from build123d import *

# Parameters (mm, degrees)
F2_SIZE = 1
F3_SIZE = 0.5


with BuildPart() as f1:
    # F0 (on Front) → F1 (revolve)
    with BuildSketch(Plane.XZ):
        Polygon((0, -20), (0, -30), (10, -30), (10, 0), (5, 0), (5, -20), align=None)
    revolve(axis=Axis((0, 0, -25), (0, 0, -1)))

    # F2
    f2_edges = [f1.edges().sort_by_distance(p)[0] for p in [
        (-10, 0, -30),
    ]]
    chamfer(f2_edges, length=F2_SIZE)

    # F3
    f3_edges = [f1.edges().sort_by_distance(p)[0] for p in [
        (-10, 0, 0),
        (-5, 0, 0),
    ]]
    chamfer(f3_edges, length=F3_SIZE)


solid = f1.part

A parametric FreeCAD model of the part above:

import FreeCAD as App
import Part
import Sketcher


def edges_at(feature, points):
    """Names of the edges that pass closest to the given points."""
    edges = feature.Shape.Edges
    near = lambda p: min(range(len(edges)), key=lambda i: edges[i].distToShape(Part.Vertex(*p))[0])
    return sorted({f"Edge{near(p) + 1}" for p in points})


def add_polygon(sketch, points):
    """Adds a closed chain of lines whose ends are joined by coincident constraints."""
    first, n = sketch.GeometryCount, len(points)
    for a, b in zip(points, points[1:] + points[:1]):
        sketch.addGeometry(Part.LineSegment(App.Vector(*a, 0), App.Vector(*b, 0)), False)
    for i in range(n):
        sketch.addConstraint(Sketcher.Constraint("Coincident", first + i, 2, first + (i + 1) % n, 1))

doc = App.newDocument("Part")
body = doc.addObject("PartDesign::Body", "Body")

sketch1 = doc.addObject("Sketcher::SketchObject", "Sketch")
body.addObject(sketch1)
sketch1.AttachmentSupport = (doc.XZ_Plane, [""])
sketch1.MapMode = "FlatFace"
add_polygon(sketch1, [(0, -20), (0, -30), (10, -30), (10, 0), (5, 0), (5, -20)])
sketch1.addConstraint([
    Sketcher.Constraint("Vertical", 0),
    Sketcher.Constraint("Horizontal", 1),
    Sketcher.Constraint("Vertical", 2),
    Sketcher.Constraint("Horizontal", 3),
    Sketcher.Constraint("Vertical", 4),
    Sketcher.Constraint("Horizontal", 5),
    Sketcher.Constraint("PointOnObject", 0, 2, -2),
    Sketcher.Constraint("PointOnObject", 2, 2, -1),
    Sketcher.Constraint("Equal", 3, 5),
    Sketcher.Constraint("Equal", 1, 0),
    Sketcher.Constraint("DistanceX", 1, 1, 1, 2, 10.0),
    Sketcher.Constraint("DistanceY", 2, 1, 2, 2, 30.0),
])
revolution = doc.addObject("PartDesign::Revolution", "Revolution")
body.addObject(revolution)
revolution.Profile = sketch1
revolution.ReferenceAxis = (sketch1, ["V_Axis"])
revolution.Angle = 360
doc.recompute()

chamfer = doc.addObject("PartDesign::Chamfer", "Chamfer")
body.addObject(chamfer)
chamfer.Base = (revolution, edges_at(revolution, [(-10, 0, -30)]))
chamfer.Size = 1
doc.recompute()

chamfer2 = doc.addObject("PartDesign::Chamfer", "Chamfer001")
body.addObject(chamfer2)
chamfer2.Base = (chamfer, edges_at(chamfer, [(-10, 0, 0), (-5, 0, 0)]))
chamfer2.Size = 0.5

doc.recompute()
